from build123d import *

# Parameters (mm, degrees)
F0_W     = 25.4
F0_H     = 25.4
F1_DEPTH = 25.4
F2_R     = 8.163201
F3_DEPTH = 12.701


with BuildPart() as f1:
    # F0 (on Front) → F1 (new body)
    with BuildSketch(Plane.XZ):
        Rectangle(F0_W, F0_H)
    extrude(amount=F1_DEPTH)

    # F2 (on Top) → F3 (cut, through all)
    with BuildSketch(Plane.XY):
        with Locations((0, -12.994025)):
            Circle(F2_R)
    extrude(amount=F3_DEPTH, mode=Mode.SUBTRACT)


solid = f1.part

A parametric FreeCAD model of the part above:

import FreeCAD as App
import Part
import Sketcher
from FreeCAD import Vector
Q = App.Units.Quantity

doc = App.newDocument("Part")
body = doc.addObject("PartDesign::Body", "Body")

# Sketch on XZ plane
sketch1 = doc.addObject("Sketcher::SketchObject", "Sketch")
body.addObject(sketch1)
sketch1.AttachmentSupport = (doc.XZ_Plane, [""])
sketch1.MapMode = "FlatFace"
sketch1.addGeometry(Part.LineSegment(Vector(-12.7, 12.7, 0), Vector(-12.7, -12.7, 0)), False)
sketch1.addGeometry(Part.LineSegment(Vector(-12.7, -12.7, 0), Vector(12.7, -12.7, 0)), False)
sketch1.addGeometry(Part.LineSegment(Vector(12.7, -12.7, 0), Vector(12.7, 12.7, 0)), False)
sketch1.addGeometry(Part.LineSegment(Vector(12.7, 12.7, 0), Vector(-12.7, 12.7, 0)), False)
sketch1.addConstraint(Sketcher.Constraint("Coincident", 0, 2, 1, 1))
sketch1.addConstraint(Sketcher.Constraint("Coincident", 1, 2, 2, 1))
sketch1.addConstraint(Sketcher.Constraint("Coincident", 2, 2, 3, 1))
sketch1.addConstraint(Sketcher.Constraint("Coincident", 3, 2, 0, 1))
sketch1.addConstraint(Sketcher.Constraint("Vertical", 0))
sketch1.addConstraint(Sketcher.Constraint("Horizontal", 1))
sketch1.addConstraint(Sketcher.Constraint("Vertical", 2))
sketch1.addConstraint(Sketcher.Constraint("Horizontal", 3))
sketch1.addConstraint(Sketcher.Constraint("Symmetric", 0, 2, 2, 2, -1, 1))
sketch1.addConstraint(Sketcher.Constraint("Equal", 3, 0))
sketch1.addConstraint(Sketcher.Constraint("DistanceX", 1, 1, 1, 2, Q("1 in")))
pad1 = doc.addObject("PartDesign::Pad", "Pad")
body.addObject(pad1)
pad1.Profile = sketch1
pad1.Length = Q("1 in")

# Sketch on XY plane
sketch2 = doc.addObject("Sketcher::SketchObject", "Sketch001")
body.addObject(sketch2)
sketch2.AttachmentSupport = (doc.XY_Plane, [""])
sketch2.MapMode = "FlatFace"
sketch2.addGeometry(Part.Circle(Vector(0, -12.994025, 0), Vector(0, 0, 1), 8.163201), False)
sketch2.addConstraint(Sketcher.Constraint("PointOnObject", 0, 3, -2))
sketch2.addConstraint(Sketcher.Constraint("Diameter", 0, Q("16.326402 mm")))
sketch2.addConstraint(Sketcher.Constraint("DistanceY", 0, 3, -1, 1, Q("12.994025 mm")))
pocket1 = doc.addObject("PartDesign::Pocket", "Pocket")
body.addObject(pocket1)
pocket1.Profile = sketch2
pocket1.Type = "ThroughAll"
pocket1.Reversed = True

doc.recompute()
